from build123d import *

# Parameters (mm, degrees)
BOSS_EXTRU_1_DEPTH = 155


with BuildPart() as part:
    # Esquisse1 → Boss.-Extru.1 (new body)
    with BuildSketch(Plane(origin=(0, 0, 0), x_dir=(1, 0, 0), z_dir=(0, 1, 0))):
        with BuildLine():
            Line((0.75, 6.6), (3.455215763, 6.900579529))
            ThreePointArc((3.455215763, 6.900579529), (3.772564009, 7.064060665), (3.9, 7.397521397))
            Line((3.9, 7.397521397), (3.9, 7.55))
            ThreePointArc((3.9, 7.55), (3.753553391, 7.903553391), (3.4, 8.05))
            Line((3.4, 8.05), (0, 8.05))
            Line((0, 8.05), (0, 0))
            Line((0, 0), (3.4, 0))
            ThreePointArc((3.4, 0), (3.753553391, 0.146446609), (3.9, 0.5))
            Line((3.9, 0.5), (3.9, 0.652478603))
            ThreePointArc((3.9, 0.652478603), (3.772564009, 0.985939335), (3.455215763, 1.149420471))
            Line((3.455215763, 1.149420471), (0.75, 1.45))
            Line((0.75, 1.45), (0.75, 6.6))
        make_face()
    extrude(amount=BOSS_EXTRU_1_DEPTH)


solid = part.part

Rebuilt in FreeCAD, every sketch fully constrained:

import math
import FreeCAD as App
import Part
import Sketcher
from FreeCAD import Vector
Q = App.Units.Quantity

doc = App.newDocument("Part")
params = doc.addObject("Spreadsheet::Sheet", "Params")
for row, (alias, value) in enumerate([
    ("sketch1_radius", "0.5 mm"),
    ("sketch1_width", "3.4 mm"),
    ("sketch1_height", "8.05 mm"),
    ("sketch1_height2", "5.15 mm"),
    ("pad1_length", "155 mm"),
], start=1):
    params.set(f"A{row}", alias)
    params.set(f"B{row}", "=" + value)
    params.setAlias(f"B{row}", alias)

body = doc.addObject("PartDesign::Body", "Body")

sketch1 = body.newObject("Sketcher::SketchObject", "Sketch")
sketch1.AttachmentSupport = (doc.getObject("XZ_Plane"), [""])
sketch1.MapMode = "FlatFace"
sketch1.addGeometry(Part.LineSegment(Vector(0.75, -6.6, 0), Vector(3.46, -6.9, 0)), False)
sketch1.addGeometry(Part.ArcOfCircle(Part.Circle(Vector(3.4, -7.4, 0), Vector(0, 0, 1), 0.5), math.radians(0), math.radians(84)), False)
sketch1.addGeometry(Part.LineSegment(Vector(3.9, -7.4, 0), Vector(3.9, -7.55, 0)), False)
sketch1.addGeometry(Part.ArcOfCircle(Part.Circle(Vector(3.4, -7.55, 0), Vector(0, 0, 1), 0.5), math.radians(-90), math.radians(0)), False)
sketch1.addGeometry(Part.LineSegment(Vector(3.4, -8.05, 0), Vector(0, -8.05, 0)), False)
sketch1.addGeometry(Part.LineSegment(Vector(0, -8.05, 0), Vector(0, 0, 0)), False)
sketch1.addGeometry(Part.LineSegment(Vector(0, 0, 0), Vector(3.4, 0, 0)), False)
sketch1.addGeometry(Part.ArcOfCircle(Part.Circle(Vector(3.4, -0.5, 0), Vector(0, 0, 1), 0.5), math.radians(0), math.radians(90)), False)
sketch1.addGeometry(Part.LineSegment(Vector(3.9, -0.5, 0), Vector(3.9, -0.65, 0)), False)
sketch1.addGeometry(Part.ArcOfCircle(Part.Circle(Vector(3.4, -0.65, 0), Vector(0, 0, 1), 0.5), math.radians(-84), math.radians(0)), False)
sketch1.addGeometry(Part.LineSegment(Vector(3.46, -1.15, 0), Vector(0.75, -1.45, 0)), False)
sketch1.addGeometry(Part.LineSegment(Vector(0.75, -1.45, 0), Vector(0.75, -6.6, 0)), False)
sketch1.addConstraint(Sketcher.Constraint("Tangent", 0, 2, 1, 2))
sketch1.addConstraint(Sketcher.Constraint("Tangent", 1, 1, 2, 1))
sketch1.addConstraint(Sketcher.Constraint("Tangent", 2, 2, 3, 2))
sketch1.addConstraint(Sketcher.Constraint("Tangent", 3, 1, 4, 1))
sketch1.addConstraint(Sketcher.Constraint("Coincident", 4, 2, 5, 1))
sketch1.addConstraint(Sketcher.Constraint("Coincident", 5, 2, 6, 1))
sketch1.addConstraint(Sketcher.Constraint("Tangent", 6, 2, 7, 2))
sketch1.addConstraint(Sketcher.Constraint("Tangent", 7, 1, 8, 1))
sketch1.addConstraint(Sketcher.Constraint("Tangent", 8, 2, 9, 2))
sketch1.addConstraint(Sketcher.Constraint("Tangent", 9, 1, 10, 1))
sketch1.addConstraint(Sketcher.Constraint("Coincident", 10, 2, 11, 1))
sketch1.addConstraint(Sketcher.Constraint("Coincident", 11, 2, 0, 1))
sketch1.addConstraint(Sketcher.Constraint("Vertical", 2))
sketch1.addConstraint(Sketcher.Constraint("Horizontal", 4))
sketch1.addConstraint(Sketcher.Constraint("Vertical", 5))
sketch1.addConstraint(Sketcher.Constraint("Horizontal", 6))
sketch1.addConstraint(Sketcher.Constraint("Vertical", 8))
sketch1.addConstraint(Sketcher.Constraint("Vertical", 11))
sketch1.addConstraint(Sketcher.Constraint("Coincident", 5, 2, -1, 1))
sketch1.addConstraint(Sketcher.Constraint("Equal", 1, 3))
sketch1.addConstraint(Sketcher.Constraint("Equal", 3, 7))
sketch1.addConstraint(Sketcher.Constraint("Equal", 7, 9))
sketch1.addConstraint(Sketcher.Constraint("Vertical", 3, 3, 7, 3))
sketch1.addConstraint(Sketcher.Constraint("Vertical", 0, 2, 9, 1))
sketch1.addConstraint(Sketcher.Constraint("Equal", 2, 8))
sketch1.addConstraint(Sketcher.Constraint("Radius", 1, Q("0.5 mm")))
sketch1.addConstraint(Sketcher.Constraint("DistanceX", 4, 2, 4, 1, Q("3.4 mm")))
sketch1.addConstraint(Sketcher.Constraint("DistanceY", 5, 1, 5, 2, Q("8.05 mm")))
sketch1.addConstraint(Sketcher.Constraint("DistanceY", 11, 2, 11, 1, Q("5.15 mm")))
sketch1.addConstraint(Sketcher.Constraint("DistanceX", -1, 1, 10, 2, Q("0.75 mm")))
sketch1.addConstraint(Sketcher.Constraint("DistanceY", 2, 2, 2, 1, Q("0.152479 mm")))
sketch1.setExpression("Constraints[25]", "Params.sketch1_radius")
sketch1.setExpression("Constraints[26]", "Params.sketch1_width")
sketch1.setExpression("Constraints[27]", "Params.sketch1_height")
sketch1.setExpression("Constraints[28]", "Params.sketch1_height2")
pad1 = body.newObject("PartDesign::Pad", "Pad")
pad1.Profile = sketch1
pad1.setExpression("Length", "Params.pad1_length")
pad1.Reversed = True

doc.recompute()
